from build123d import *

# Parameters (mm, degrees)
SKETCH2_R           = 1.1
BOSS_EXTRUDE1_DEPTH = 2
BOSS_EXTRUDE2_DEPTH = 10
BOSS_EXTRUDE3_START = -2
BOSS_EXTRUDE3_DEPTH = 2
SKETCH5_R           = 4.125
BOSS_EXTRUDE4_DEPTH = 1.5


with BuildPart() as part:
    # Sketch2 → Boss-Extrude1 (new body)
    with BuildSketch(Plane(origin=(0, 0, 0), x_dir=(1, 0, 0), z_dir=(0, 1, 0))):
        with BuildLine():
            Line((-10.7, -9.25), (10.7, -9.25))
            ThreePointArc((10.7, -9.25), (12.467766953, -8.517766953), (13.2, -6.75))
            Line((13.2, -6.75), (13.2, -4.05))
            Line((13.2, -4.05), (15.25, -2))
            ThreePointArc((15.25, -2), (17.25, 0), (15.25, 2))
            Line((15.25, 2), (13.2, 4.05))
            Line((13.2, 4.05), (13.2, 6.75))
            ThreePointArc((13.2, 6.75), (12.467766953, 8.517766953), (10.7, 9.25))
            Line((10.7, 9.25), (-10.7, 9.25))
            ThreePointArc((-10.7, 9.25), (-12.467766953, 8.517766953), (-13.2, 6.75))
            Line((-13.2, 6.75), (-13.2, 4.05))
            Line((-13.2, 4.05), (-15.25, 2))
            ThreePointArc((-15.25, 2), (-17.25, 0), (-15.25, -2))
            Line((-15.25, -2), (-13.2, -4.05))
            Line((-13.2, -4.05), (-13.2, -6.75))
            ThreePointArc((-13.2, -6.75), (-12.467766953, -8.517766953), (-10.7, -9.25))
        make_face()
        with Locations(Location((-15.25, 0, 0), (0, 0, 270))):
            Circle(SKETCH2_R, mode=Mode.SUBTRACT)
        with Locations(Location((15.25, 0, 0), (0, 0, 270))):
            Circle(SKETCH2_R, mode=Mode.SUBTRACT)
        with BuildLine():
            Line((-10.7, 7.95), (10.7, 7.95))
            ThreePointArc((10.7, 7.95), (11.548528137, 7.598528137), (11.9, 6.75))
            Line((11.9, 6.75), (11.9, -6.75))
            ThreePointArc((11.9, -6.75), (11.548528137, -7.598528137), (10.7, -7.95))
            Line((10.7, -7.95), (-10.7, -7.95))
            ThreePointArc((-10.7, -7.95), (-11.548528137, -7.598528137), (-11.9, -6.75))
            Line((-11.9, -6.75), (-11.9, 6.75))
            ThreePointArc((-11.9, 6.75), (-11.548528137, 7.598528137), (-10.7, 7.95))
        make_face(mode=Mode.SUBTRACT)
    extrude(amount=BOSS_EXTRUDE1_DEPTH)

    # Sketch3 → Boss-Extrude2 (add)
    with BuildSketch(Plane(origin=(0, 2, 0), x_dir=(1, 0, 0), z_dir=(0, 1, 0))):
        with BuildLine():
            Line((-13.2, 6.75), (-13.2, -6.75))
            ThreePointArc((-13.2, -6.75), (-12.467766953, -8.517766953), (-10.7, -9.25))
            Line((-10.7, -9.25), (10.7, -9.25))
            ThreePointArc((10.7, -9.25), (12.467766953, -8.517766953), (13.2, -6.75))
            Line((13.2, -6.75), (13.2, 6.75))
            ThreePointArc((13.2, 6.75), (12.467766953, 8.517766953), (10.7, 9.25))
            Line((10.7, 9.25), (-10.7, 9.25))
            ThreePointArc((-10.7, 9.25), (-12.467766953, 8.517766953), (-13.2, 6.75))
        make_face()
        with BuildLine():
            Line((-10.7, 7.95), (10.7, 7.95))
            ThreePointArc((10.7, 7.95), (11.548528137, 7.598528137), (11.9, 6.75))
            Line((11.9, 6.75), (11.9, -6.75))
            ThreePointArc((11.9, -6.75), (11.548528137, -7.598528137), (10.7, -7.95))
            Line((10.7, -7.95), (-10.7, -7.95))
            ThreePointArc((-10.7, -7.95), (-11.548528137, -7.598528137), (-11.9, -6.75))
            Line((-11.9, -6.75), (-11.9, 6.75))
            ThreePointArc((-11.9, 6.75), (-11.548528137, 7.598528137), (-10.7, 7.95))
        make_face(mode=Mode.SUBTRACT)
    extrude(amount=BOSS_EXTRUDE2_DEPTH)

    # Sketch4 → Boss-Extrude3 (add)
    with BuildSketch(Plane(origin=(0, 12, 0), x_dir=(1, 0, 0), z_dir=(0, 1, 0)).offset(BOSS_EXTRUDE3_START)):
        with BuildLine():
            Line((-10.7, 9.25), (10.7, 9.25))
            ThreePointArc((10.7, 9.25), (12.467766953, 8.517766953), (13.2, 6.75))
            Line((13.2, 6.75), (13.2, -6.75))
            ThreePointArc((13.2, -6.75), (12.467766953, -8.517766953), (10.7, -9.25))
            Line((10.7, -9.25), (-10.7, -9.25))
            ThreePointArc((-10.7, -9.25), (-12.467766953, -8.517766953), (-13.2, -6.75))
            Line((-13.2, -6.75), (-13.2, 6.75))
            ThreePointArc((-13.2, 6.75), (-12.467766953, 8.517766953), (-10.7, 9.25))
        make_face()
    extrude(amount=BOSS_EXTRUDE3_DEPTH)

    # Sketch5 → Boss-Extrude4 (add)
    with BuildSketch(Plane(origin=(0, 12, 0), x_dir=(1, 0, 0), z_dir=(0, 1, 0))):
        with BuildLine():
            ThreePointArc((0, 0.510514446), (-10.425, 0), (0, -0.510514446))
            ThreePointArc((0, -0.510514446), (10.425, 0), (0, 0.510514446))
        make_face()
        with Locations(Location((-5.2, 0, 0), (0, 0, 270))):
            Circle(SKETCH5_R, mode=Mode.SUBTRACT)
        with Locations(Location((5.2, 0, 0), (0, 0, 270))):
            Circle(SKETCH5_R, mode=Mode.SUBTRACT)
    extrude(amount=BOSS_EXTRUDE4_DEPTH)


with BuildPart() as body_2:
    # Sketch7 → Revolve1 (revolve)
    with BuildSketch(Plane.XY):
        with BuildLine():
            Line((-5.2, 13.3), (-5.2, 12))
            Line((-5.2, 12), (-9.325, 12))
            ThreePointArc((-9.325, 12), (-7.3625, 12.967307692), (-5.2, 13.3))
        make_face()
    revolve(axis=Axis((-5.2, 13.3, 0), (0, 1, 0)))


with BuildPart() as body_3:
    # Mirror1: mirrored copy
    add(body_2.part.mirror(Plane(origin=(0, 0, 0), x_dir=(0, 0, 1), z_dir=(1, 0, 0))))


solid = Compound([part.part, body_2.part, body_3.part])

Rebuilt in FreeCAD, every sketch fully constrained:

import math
import FreeCAD as App
import Part
import Sketcher
Q = App.Units.Quantity

doc = App.newDocument("Part")
body = doc.addObject("PartDesign::Body", "Body")

# Sketch on XZ plane
sketch1 = doc.addObject("Sketcher::SketchObject", "Sketch")
body.addObject(sketch1)
sketch1.AttachmentSupport = (doc.XZ_Plane, [""])
sketch1.MapMode = "FlatFace"
sketch1.addGeometry(Part.LineSegment(App.Vector(-10.7, 9.25, 0), App.Vector(10.7, 9.25, 0)), False)
sketch1.addGeometry(Part.ArcOfCircle(Part.Circle(App.Vector(10.7, 6.75, 0), App.Vector(0, 0, 1), 2.5), math.radians(0), math.radians(90)), False)
sketch1.addGeometry(Part.LineSegment(App.Vector(13.2, 6.75, 0), App.Vector(13.2, 4.05, 0)), False)
sketch1.addGeometry(Part.LineSegment(App.Vector(13.2, 4.05, 0), App.Vector(15.25, 2, 0)), False)
sketch1.addGeometry(Part.ArcOfCircle(Part.Circle(App.Vector(15.25, 0, 0), App.Vector(0, 0, 1), 2), math.radians(-90), math.radians(90)), False)
sketch1.addGeometry(Part.LineSegment(App.Vector(15.25, -2, 0), App.Vector(13.2, -4.05, 0)), False)
sketch1.addGeometry(Part.LineSegment(App.Vector(13.2, -4.05, 0), App.Vector(13.2, -6.75, 0)), False)
sketch1.addGeometry(Part.ArcOfCircle(Part.Circle(App.Vector(10.7, -6.75, 0), App.Vector(0, 0, 1), 2.5), math.radians(-90), math.radians(0)), False)
sketch1.addGeometry(Part.LineSegment(App.Vector(10.7, -9.25, 0), App.Vector(-10.7, -9.25, 0)), False)
sketch1.addGeometry(Part.ArcOfCircle(Part.Circle(App.Vector(-10.7, -6.75, 0), App.Vector(0, 0, 1), 2.5), math.radians(180), math.radians(270)), False)
sketch1.addGeometry(Part.LineSegment(App.Vector(-13.2, -6.75, 0), App.Vector(-13.2, -4.05, 0)), False)
sketch1.addGeometry(Part.LineSegment(App.Vector(-13.2, -4.05, 0), App.Vector(-15.25, -2, 0)), False)
sketch1.addGeometry(Part.ArcOfCircle(Part.Circle(App.Vector(-15.25, 0, 0), App.Vector(0, 0, 1), 2), math.radians(90), math.radians(270)), False)
sketch1.addGeometry(Part.LineSegment(App.Vector(-15.25, 2, 0), App.Vector(-13.2, 4.05, 0)), False)
sketch1.addGeometry(Part.LineSegment(App.Vector(-13.2, 4.05, 0), App.Vector(-13.2, 6.75, 0)), False)
sketch1.addGeometry(Part.ArcOfCircle(Part.Circle(App.Vector(-10.7, 6.75, 0), App.Vector(0, 0, 1), 2.5), math.radians(90), math.radians(180)), False)
sketch1.addGeometry(Part.Circle(App.Vector(-15.25, 0, 0), App.Vector(0, 0, 1), 1.1), False)
sketch1.addGeometry(Part.ArcOfCircle(Part.Circle(App.Vector(-10.7, -6.75, 0), App.Vector(0, 0, 1), 1.2), math.radians(-180), math.radians(-90)), False)
sketch1.addGeometry(Part.LineSegment(App.Vector(-10.7, -7.95, 0), App.Vector(10.7, -7.95, 0)), False)
sketch1.addGeometry(Part.ArcOfCircle(Part.Circle(App.Vector(10.7, -6.75, 0), App.Vector(0, 0, 1), 1.2), math.radians(-90), math.radians(0)), False)
sketch1.addGeometry(Part.LineSegment(App.Vector(11.9, -6.75, 0), App.Vector(11.9, 6.75, 0)), False)
sketch1.addGeometry(Part.ArcOfCircle(Part.Circle(App.Vector(10.7, 6.75, 0), App.Vector(0, 0, 1), 1.2), math.radians(0), math.radians(90)), False)
sketch1.addGeometry(Part.LineSegment(App.Vector(10.7, 7.95, 0), App.Vector(-10.7, 7.95, 0)), False)
sketch1.addGeometry(Part.ArcOfCircle(Part.Circle(App.Vector(-10.7, 6.75, 0), App.Vector(0, 0, 1), 1.2), math.radians(90), math.radians(180)), False)
sketch1.addGeometry(Part.LineSegment(App.Vector(-11.9, 6.75, 0), App.Vector(-11.9, -6.75, 0)), False)
sketch1.addGeometry(Part.Circle(App.Vector(15.25, 0, 0), App.Vector(0, 0, 1), 1.1), False)
sketch1.addConstraint(Sketcher.Constraint("Tangent", 0, 2, 1, 2))
sketch1.addConstraint(Sketcher.Constraint("Tangent", 1, 1, 2, 1))
sketch1.addConstraint(Sketcher.Constraint("Coincident", 2, 2, 3, 1))
sketch1.addConstraint(Sketcher.Constraint("Coincident", 3, 2, 4, 2))
sketch1.addConstraint(Sketcher.Constraint("Coincident", 4, 1, 5, 1))
sketch1.addConstraint(Sketcher.Constraint("Coincident", 5, 2, 6, 1))
sketch1.addConstraint(Sketcher.Constraint("Tangent", 6, 2, 7, 2))
sketch1.addConstraint(Sketcher.Constraint("Tangent", 7, 1, 8, 1))
sketch1.addConstraint(Sketcher.Constraint("Tangent", 8, 2, 9, 2))
sketch1.addConstraint(Sketcher.Constraint("Tangent", 9, 1, 10, 1))
sketch1.addConstraint(Sketcher.Constraint("Coincident", 10, 2, 11, 1))
sketch1.addConstraint(Sketcher.Constraint("Coincident", 11, 2, 12, 2))
sketch1.addConstraint(Sketcher.Constraint("Coincident", 12, 1, 13, 1))
sketch1.addConstraint(Sketcher.Constraint("Coincident", 13, 2, 14, 1))
sketch1.addConstraint(Sketcher.Constraint("Tangent", 14, 2, 15, 2))
sketch1.addConstraint(Sketcher.Constraint("Tangent", 15, 1, 0, 1))
sketch1.addConstraint(Sketcher.Constraint("Tangent", 17, 2, 18, 1))
sketch1.addConstraint(Sketcher.Constraint("Tangent", 18, 2, 19, 1))
sketch1.addConstraint(Sketcher.Constraint("Tangent", 19, 2, 20, 1))
sketch1.addConstraint(Sketcher.Constraint("Tangent", 20, 2, 21, 1))
sketch1.addConstraint(Sketcher.Constraint("Tangent", 21, 2, 22, 1))
sketch1.addConstraint(Sketcher.Constraint("Tangent", 22, 2, 23, 1))
sketch1.addConstraint(Sketcher.Constraint("Tangent", 23, 2, 24, 1))
sketch1.addConstraint(Sketcher.Constraint("Tangent", 24, 2, 17, 1))
sketch1.addConstraint(Sketcher.Constraint("Horizontal", 0))
sketch1.addConstraint(Sketcher.Constraint("Vertical", 2))
sketch1.addConstraint(Sketcher.Constraint("Vertical", 6))
sketch1.addConstraint(Sketcher.Constraint("Horizontal", 8))
sketch1.addConstraint(Sketcher.Constraint("Vertical", 10))
sketch1.addConstraint(Sketcher.Constraint("Vertical", 14))
sketch1.addConstraint(Sketcher.Constraint("Horizontal", 18))
sketch1.addConstraint(Sketcher.Constraint("Vertical", 20))
sketch1.addConstraint(Sketcher.Constraint("Horizontal", 22))
sketch1.addConstraint(Sketcher.Constraint("Vertical", 24))
sketch1.addConstraint(Sketcher.Constraint("Coincident", 16, 3, 12, 3))
sketch1.addConstraint(Sketcher.Constraint("Coincident", 17, 3, 9, 3))
sketch1.addConstraint(Sketcher.Constraint("Coincident", 19, 3, 7, 3))
sketch1.addConstraint(Sketcher.Constraint("Coincident", 21, 3, 1, 3))
sketch1.addConstraint(Sketcher.Constraint("Coincident", 23, 3, 15, 3))
sketch1.addConstraint(Sketcher.Constraint("Coincident", 25, 3, 4, 3))
sketch1.addConstraint(Sketcher.Constraint("Equal", 1, 7))
sketch1.addConstraint(Sketcher.Constraint("Equal", 7, 9))
sketch1.addConstraint(Sketcher.Constraint("Equal", 4, 12))
sketch1.addConstraint(Sketcher.Constraint("Equal", 9, 15))
sketch1.addConstraint(Sketcher.Constraint("Equal", 19, 21))
sketch1.addConstraint(Sketcher.Constraint("Equal", 16, 25))
sketch1.addConstraint(Sketcher.Constraint("Symmetric", 1, 3, 9, 3, -1, 1))
sketch1.addConstraint(Sketcher.Constraint("Symmetric", 4, 3, 12, 3, -1, 1))
sketch1.addConstraint(Sketcher.Constraint("Symmetric", 4, 1, 11, 2, -2))
sketch1.addConstraint(Sketcher.Constraint("Perpendicular", 3, 5))
sketch1.addConstraint(Sketcher.Constraint("Perpendicular", 5, 11))
sketch1.addConstraint(Sketcher.Constraint("Perpendicular", 11, 13))
sketch1.addConstraint(Sketcher.Constraint("Horizontal", 5, 2, 10, 2))
sketch1.addConstraint(Sketcher.Constraint("Horizontal", 2, 2, 13, 2))
sketch1.addConstraint(Sketcher.Constraint("Vertical", 25, 3, 3, 2))
sketch1.addConstraint(Sketcher.Constraint("Vertical", 3, 2, 4, 1))
sketch1.addConstraint(Sketcher.Constraint("Radius", 4, Q("2 mm")))
sketch1.addConstraint(Sketcher.Constraint("Diameter", 16, Q("2.2 mm")))
sketch1.addConstraint(Sketcher.Constraint("Radius", 1, Q("2.5 mm")))
sketch1.addConstraint(Sketcher.Constraint("Radius", 17, Q("1.2 mm")))
sketch1.addConstraint(Sketcher.Constraint("DistanceX", 0, 1, 0, 2, Q("21.4 mm")))
sketch1.addConstraint(Sketcher.Constraint("DistanceY", 2, 2, 2, 1, Q("2.7 mm")))
sketch1.addConstraint(Sketcher.Constraint("DistanceY", 20, 1, 20, 2, Q("13.5 mm")))
pad1 = doc.addObject("PartDesign::Pad", "Pad")
body.addObject(pad1)
pad1.Profile = sketch1
pad1.Length = 2
pad1.Reversed = True

# Sketch on XZ plane
sketch2 = doc.addObject("Sketcher::SketchObject", "Sketch001")
body.addObject(sketch2)
sketch2.AttachmentSupport = (doc.XZ_Plane, [""])
sketch2.MapMode = "FlatFace"
sketch2.AttachmentOffset = App.Placement(App.Vector(0, 0, -2), App.Rotation())
sketch2.addGeometry(Part.LineSegment(App.Vector(-13.2, -6.75, 0), App.Vector(-13.2, 6.75, 0)), False)
sketch2.addGeometry(Part.ArcOfCircle(Part.Circle(App.Vector(-10.7, 6.75, 0), App.Vector(0, 0, 1), 2.5), math.radians(90), math.radians(180)), False)
sketch2.addGeometry(Part.LineSegment(App.Vector(-10.7, 9.25, 0), App.Vector(10.7, 9.25, 0)), False)
sketch2.addGeometry(Part.ArcOfCircle(Part.Circle(App.Vector(10.7, 6.75, 0), App.Vector(0, 0, 1), 2.5), math.radians(0), math.radians(90)), False)
sketch2.addGeometry(Part.LineSegment(App.Vector(13.2, 6.75, 0), App.Vector(13.2, -6.75, 0)), False)
sketch2.addGeometry(Part.ArcOfCircle(Part.Circle(App.Vector(10.7, -6.75, 0), App.Vector(0, 0, 1), 2.5), math.radians(-90), math.radians(0)), False)
sketch2.addGeometry(Part.LineSegment(App.Vector(10.7, -9.25, 0), App.Vector(-10.7, -9.25, 0)), False)
sketch2.addGeometry(Part.ArcOfCircle(Part.Circle(App.Vector(-10.7, -6.75, 0), App.Vector(0, 0, 1), 2.5), math.radians(180), math.radians(270)), False)
sketch2.addGeometry(Part.ArcOfCircle(Part.Circle(App.Vector(-10.7, -6.75, 0), App.Vector(0, 0, 1), 1.2), math.radians(-180), math.radians(-90)), False)
sketch2.addGeometry(Part.LineSegment(App.Vector(-10.7, -7.95, 0), App.Vector(10.7, -7.95, 0)), False)
sketch2.addGeometry(Part.ArcOfCircle(Part.Circle(App.Vector(10.7, -6.75, 0), App.Vector(0, 0, 1), 1.2), math.radians(-90), math.radians(0)), False)
sketch2.addGeometry(Part.LineSegment(App.Vector(11.9, -6.75, 0), App.Vector(11.9, 6.75, 0)), False)
sketch2.addGeometry(Part.ArcOfCircle(Part.Circle(App.Vector(10.7, 6.75, 0), App.Vector(0, 0, 1), 1.2), math.radians(0), math.radians(90)), False)
sketch2.addGeometry(Part.LineSegment(App.Vector(10.7, 7.95, 0), App.Vector(-10.7, 7.95, 0)), False)
sketch2.addGeometry(Part.ArcOfCircle(Part.Circle(App.Vector(-10.7, 6.75, 0), App.Vector(0, 0, 1), 1.2), math.radians(90), math.radians(180)), False)
sketch2.addGeometry(Part.LineSegment(App.Vector(-11.9, 6.75, 0), App.Vector(-11.9, -6.75, 0)), False)
sketch2.addConstraint(Sketcher.Constraint("Tangent", 0, 2, 1, 2))
sketch2.addConstraint(Sketcher.Constraint("Tangent", 1, 1, 2, 1))
sketch2.addConstraint(Sketcher.Constraint("Tangent", 2, 2, 3, 2))
sketch2.addConstraint(Sketcher.Constraint("Tangent", 3, 1, 4, 1))
sketch2.addConstraint(Sketcher.Constraint("Tangent", 4, 2, 5, 2))
sketch2.addConstraint(Sketcher.Constraint("Tangent", 5, 1, 6, 1))
sketch2.addConstraint(Sketcher.Constraint("Tangent", 6, 2, 7, 2))
sketch2.addConstraint(Sketcher.Constraint("Tangent", 7, 1, 0, 1))
sketch2.addConstraint(Sketcher.Constraint("Tangent", 8, 2, 9, 1))
sketch2.addConstraint(Sketcher.Constraint("Tangent", 9, 2, 10, 1))
sketch2.addConstraint(Sketcher.Constraint("Tangent", 10, 2, 11, 1))
sketch2.addConstraint(Sketcher.Constraint("Tangent", 11, 2, 12, 1))
sketch2.addConstraint(Sketcher.Constraint("Tangent", 12, 2, 13, 1))
sketch2.addConstraint(Sketcher.Constraint("Tangent", 13, 2, 14, 1))
sketch2.addConstraint(Sketcher.Constraint("Tangent", 14, 2, 15, 1))
sketch2.addConstraint(Sketcher.Constraint("Tangent", 15, 2, 8, 1))
sketch2.addConstraint(Sketcher.Constraint("Vertical", 0))
sketch2.addConstraint(Sketcher.Constraint("Horizontal", 2))
sketch2.addConstraint(Sketcher.Constraint("Vertical", 4))
sketch2.addConstraint(Sketcher.Constraint("Horizontal", 6))
sketch2.addConstraint(Sketcher.Constraint("Horizontal", 9))
sketch2.addConstraint(Sketcher.Constraint("Vertical", 11))
sketch2.addConstraint(Sketcher.Constraint("Horizontal", 13))
sketch2.addConstraint(Sketcher.Constraint("Vertical", 15))
sketch2.addConstraint(Sketcher.Constraint("Coincident", 8, 3, 7, 3))
sketch2.addConstraint(Sketcher.Constraint("Coincident", 10, 3, 5, 3))
sketch2.addConstraint(Sketcher.Constraint("Coincident", 12, 3, 3, 3))
sketch2.addConstraint(Sketcher.Constraint("Equal", 1, 3))
sketch2.addConstraint(Sketcher.Constraint("Equal", 3, 5))
sketch2.addConstraint(Sketcher.Constraint("Equal", 5, 7))
sketch2.addConstraint(Sketcher.Constraint("Equal", 12, 14))
sketch2.addConstraint(Sketcher.Constraint("Symmetric", 1, 3, 5, 3, -1, 1))
sketch2.addConstraint(Sketcher.Constraint("Radius", 1, Q("2.5 mm")))
sketch2.addConstraint(Sketcher.Constraint("Radius", 8, Q("1.2 mm")))
sketch2.addConstraint(Sketcher.Constraint("DistanceX", 2, 1, 2, 2, Q("21.4 mm")))
sketch2.addConstraint(Sketcher.Constraint("DistanceY", 0, 1, 0, 2, Q("13.5 mm")))
pad2 = doc.addObject("PartDesign::Pad", "Pad001")
body.addObject(pad2)
pad2.Profile = sketch2
pad2.Length = 10
pad2.Reversed = True

# Sketch on XZ plane
sketch3 = doc.addObject("Sketcher::SketchObject", "Sketch002")
body.addObject(sketch3)
sketch3.AttachmentSupport = (doc.XZ_Plane, [""])
sketch3.MapMode = "FlatFace"
sketch3.AttachmentOffset = App.Placement(App.Vector(0, 0, -10), App.Rotation())
sketch3.addGeometry(Part.LineSegment(App.Vector(10.7, -9.25, 0), App.Vector(-10.7, -9.25, 0)), False)
sketch3.addGeometry(Part.ArcOfCircle(Part.Circle(App.Vector(-10.7, -6.75, 0), App.Vector(0, 0, 1), 2.5), math.radians(180), math.radians(270)), False)
sketch3.addGeometry(Part.LineSegment(App.Vector(-13.2, -6.75, 0), App.Vector(-13.2, 6.75, 0)), False)
sketch3.addGeometry(Part.ArcOfCircle(Part.Circle(App.Vector(-10.7, 6.75, 0), App.Vector(0, 0, 1), 2.5), math.radians(90), math.radians(180)), False)
sketch3.addGeometry(Part.LineSegment(App.Vector(-10.7, 9.25, 0), App.Vector(10.7, 9.25, 0)), False)
sketch3.addGeometry(Part.ArcOfCircle(Part.Circle(App.Vector(10.7, 6.75, 0), App.Vector(0, 0, 1), 2.5), math.radians(0), math.radians(90)), False)
sketch3.addGeometry(Part.LineSegment(App.Vector(13.2, 6.75, 0), App.Vector(13.2, -6.75, 0)), False)
sketch3.addGeometry(Part.ArcOfCircle(Part.Circle(App.Vector(10.7, -6.75, 0), App.Vector(0, 0, 1), 2.5), math.radians(-90), math.radians(0)), False)
sketch3.addConstraint(Sketcher.Constraint("Tangent", 0, 2, 1, 2))
sketch3.addConstraint(Sketcher.Constraint("Tangent", 1, 1, 2, 1))
sketch3.addConstraint(Sketcher.Constraint("Tangent", 2, 2, 3, 2))
sketch3.addConstraint(Sketcher.Constraint("Tangent", 3, 1, 4, 1))
sketch3.addConstraint(Sketcher.Constraint("Tangent", 4, 2, 5, 2))
sketch3.addConstraint(Sketcher.Constraint("Tangent", 5, 1, 6, 1))
sketch3.addConstraint(Sketcher.Constraint("Tangent", 6, 2, 7, 2))
sketch3.addConstraint(Sketcher.Constraint("Tangent", 7, 1, 0, 1))
sketch3.addConstraint(Sketcher.Constraint("Horizontal", 0))
sketch3.addConstraint(Sketcher.Constraint("Vertical", 2))
sketch3.addConstraint(Sketcher.Constraint("Horizontal", 4))
sketch3.addConstraint(Sketcher.Constraint("Vertical", 6))
sketch3.addConstraint(Sketcher.Constraint("Equal", 1, 3))
sketch3.addConstraint(Sketcher.Constraint("Equal", 3, 5))
sketch3.addConstraint(Sketcher.Constraint("Equal", 5, 7))
sketch3.addConstraint(Sketcher.Constraint("Symmetric", 1, 3, 5, 3, -1, 1))
sketch3.addConstraint(Sketcher.Constraint("Radius", 1, Q("2.5 mm")))
sketch3.addConstraint(Sketcher.Constraint("DistanceX", 0, 2, 0, 1, Q("21.4 mm")))
sketch3.addConstraint(Sketcher.Constraint("DistanceY", 2, 1, 2, 2, Q("13.5 mm")))
pad3 = doc.addObject("PartDesign::Pad", "Pad002")
body.addObject(pad3)
pad3.Profile = sketch3
pad3.Length = 2
pad3.Reversed = True

# Sketch on XZ plane
sketch4 = doc.addObject("Sketcher::SketchObject", "Sketch003")
body.addObject(sketch4)
sketch4.AttachmentSupport = (doc.XZ_Plane, [""])
sketch4.MapMode = "FlatFace"
sketch4.AttachmentOffset = App.Placement(App.Vector(0, 0, -12), App.Rotation())
sketch4.addGeometry(Part.ArcOfCircle(Part.Circle(App.Vector(-5.2, 0, 0), App.Vector(0, 0, 1), 5.225), math.radians(5.607094), math.radians(354.392906)), False)
sketch4.addGeometry(Part.ArcOfCircle(Part.Circle(App.Vector(5.2, 0, 0), App.Vector(0, 0, 1), 5.225), math.radians(-174.392906), math.radians(174.392906)), False)
sketch4.addGeometry(Part.Circle(App.Vector(-5.2, 0, 0), App.Vector(0, 0, 1), 4.125), False)
sketch4.addGeometry(Part.Circle(App.Vector(5.2, 0, 0), App.Vector(0, 0, 1), 4.125), False)
sketch4.addConstraint(Sketcher.Constraint("Coincident", 0, 1, 1, 2))
sketch4.addConstraint(Sketcher.Constraint("Coincident", 1, 1, 0, 2))
sketch4.addConstraint(Sketcher.Constraint("Coincident", 2, 3, 0, 3))
sketch4.addConstraint(Sketcher.Constraint("Coincident", 3, 3, 1, 3))
sketch4.addConstraint(Sketcher.Constraint("Equal", 0, 1))
sketch4.addConstraint(Sketcher.Constraint("Equal", 2, 3))
sketch4.addConstraint(Sketcher.Constraint("Symmetric", 0, 3, 1, 3, -1, 1))
sketch4.addConstraint(Sketcher.Constraint("PointOnObject", 0, 3, -1))
sketch4.addConstraint(Sketcher.Constraint("Diameter", 2, Q("8.25 mm")))
sketch4.addConstraint(Sketcher.Constraint("Radius", 0, Q("5.225 mm")))
sketch4.addConstraint(Sketcher.Constraint("DistanceX", 0, 3, -1, 1, Q("5.2 mm")))
pad4 = doc.addObject("PartDesign::Pad", "Pad003")
body.addObject(pad4)
pad4.Profile = sketch4
pad4.Length = 1.5
pad4.Reversed = True
body2 = doc.addObject("PartDesign::Body", "Body001")

# Sketch on XY plane
sketch5 = doc.addObject("Sketcher::SketchObject", "Sketch004")
body2.addObject(sketch5)
sketch5.AttachmentSupport = (doc.getObject("XY_Plane001"), [""])
sketch5.MapMode = "FlatFace"
sketch5.addGeometry(Part.LineSegment(App.Vector(-5.2, 12, 0), App.Vector(-5.2, 13.3, 0)), False)
sketch5.addGeometry(Part.ArcOfCircle(Part.Circle(App.Vector(-5.2, 6.105529, 0), App.Vector(0, 0, 1), 7.194471), math.radians(90), math.radians(124.984649)), False)
sketch5.addGeometry(Part.LineSegment(App.Vector(-9.325, 12, 0), App.Vector(-5.2, 12, 0)), False)
sketch5.addGeometry(Part.LineSegment(App.Vector(-5.2, 6.105529, 0), App.Vector(-5.2, 13.3, 0)), True)  # axis
sketch5.addConstraint(Sketcher.Constraint("Coincident", 0, 2, 1, 1))
sketch5.addConstraint(Sketcher.Constraint("Coincident", 1, 2, 2, 1))
sketch5.addConstraint(Sketcher.Constraint("Coincident", 2, 2, 0, 1))
sketch5.addConstraint(Sketcher.Constraint("Vertical", 0))
sketch5.addConstraint(Sketcher.Constraint("Horizontal", 2))
sketch5.addConstraint(Sketcher.Constraint("Vertical", 3))
sketch5.addConstraint(Sketcher.Constraint("Coincident", 3, 1, 1, 3))
sketch5.addConstraint(Sketcher.Constraint("Coincident", 3, 2, 0, 2))
sketch5.addConstraint(Sketcher.Constraint("DistanceY", 0, 1, 0, 2, Q("1.3 mm")))
sketch5.addConstraint(Sketcher.Constraint("DistanceY", -1, 1, 1, 2, Q("12 mm")))
sketch5.addConstraint(Sketcher.Constraint("DistanceX", 1, 3, -1, 1, Q("5.2 mm")))
sketch5.addConstraint(Sketcher.Constraint("DistanceX", 2, 1, 2, 2, Q("4.125 mm")))
revolution = doc.addObject("PartDesign::Revolution", "Revolution")
body2.addObject(revolution)
revolution.Profile = sketch5
revolution.ReferenceAxis = (sketch5, ["Axis0"])
revolution.Angle = 360
body3 = doc.addObject("PartDesign::Body", "Body002")
doc.recompute()

mirroring = doc.addObject("Part::Mirroring", "Mirroring")
mirroring.Source = body2
mirroring.Base = App.Vector(0, 0, 0)
mirroring.Normal = App.Vector(1, 0, 0)
body3.BaseFeature = mirroring
doc.recompute()
mirroring.Visibility = False

doc.recompute()
